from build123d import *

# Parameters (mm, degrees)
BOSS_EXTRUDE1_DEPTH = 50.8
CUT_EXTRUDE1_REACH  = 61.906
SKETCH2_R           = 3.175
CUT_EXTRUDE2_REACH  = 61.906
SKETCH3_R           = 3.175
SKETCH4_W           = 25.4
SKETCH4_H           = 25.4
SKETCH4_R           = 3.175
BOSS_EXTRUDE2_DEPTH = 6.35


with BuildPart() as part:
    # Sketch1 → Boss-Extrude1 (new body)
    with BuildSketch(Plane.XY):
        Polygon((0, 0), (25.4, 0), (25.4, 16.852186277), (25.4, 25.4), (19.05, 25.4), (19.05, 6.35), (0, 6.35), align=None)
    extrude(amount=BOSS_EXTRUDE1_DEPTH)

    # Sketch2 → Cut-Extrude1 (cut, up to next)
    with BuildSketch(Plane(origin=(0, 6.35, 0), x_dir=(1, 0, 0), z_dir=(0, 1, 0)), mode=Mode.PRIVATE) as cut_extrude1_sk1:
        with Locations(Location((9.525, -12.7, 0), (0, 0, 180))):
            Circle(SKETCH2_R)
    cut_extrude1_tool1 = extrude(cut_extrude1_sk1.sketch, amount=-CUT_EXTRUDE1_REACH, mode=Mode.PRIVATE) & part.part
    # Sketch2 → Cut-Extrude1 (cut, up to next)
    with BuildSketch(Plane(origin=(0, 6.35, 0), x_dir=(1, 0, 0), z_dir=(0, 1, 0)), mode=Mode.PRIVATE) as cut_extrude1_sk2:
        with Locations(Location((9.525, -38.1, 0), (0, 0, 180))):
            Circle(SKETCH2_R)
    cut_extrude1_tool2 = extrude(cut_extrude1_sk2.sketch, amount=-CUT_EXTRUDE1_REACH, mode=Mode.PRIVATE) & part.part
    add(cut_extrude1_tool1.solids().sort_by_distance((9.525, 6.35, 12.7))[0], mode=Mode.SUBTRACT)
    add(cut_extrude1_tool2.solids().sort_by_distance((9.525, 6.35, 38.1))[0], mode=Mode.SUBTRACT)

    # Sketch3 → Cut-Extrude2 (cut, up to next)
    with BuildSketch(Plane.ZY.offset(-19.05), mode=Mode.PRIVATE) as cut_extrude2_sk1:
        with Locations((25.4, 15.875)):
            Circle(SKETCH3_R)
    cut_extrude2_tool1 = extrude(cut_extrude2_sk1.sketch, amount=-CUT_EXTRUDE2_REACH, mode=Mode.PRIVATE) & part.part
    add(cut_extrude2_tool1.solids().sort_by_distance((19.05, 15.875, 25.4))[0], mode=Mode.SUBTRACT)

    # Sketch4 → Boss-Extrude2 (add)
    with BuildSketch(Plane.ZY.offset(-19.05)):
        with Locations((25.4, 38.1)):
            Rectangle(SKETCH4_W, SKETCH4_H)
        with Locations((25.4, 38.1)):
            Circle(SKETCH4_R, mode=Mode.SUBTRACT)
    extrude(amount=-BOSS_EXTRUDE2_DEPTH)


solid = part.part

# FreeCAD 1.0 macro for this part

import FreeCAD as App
import Part
import Sketcher

V = App.Vector
Q = App.Units.Quantity


def add_polygon(sketch, points):
    """Adds a closed chain of lines whose ends are joined by coincident constraints."""
    first, n = sketch.GeometryCount, len(points)
    for a, b in zip(points, points[1:] + points[:1]):
        sketch.addGeometry(Part.LineSegment(App.Vector(*a, 0), App.Vector(*b, 0)), False)
    for i in range(n):
        sketch.addConstraint(Sketcher.Constraint("Coincident", first + i, 2, first + (i + 1) % n, 1))

doc = App.newDocument("Part")
body = doc.addObject("PartDesign::Body", "Body")

sketch1 = body.newObject("Sketcher::SketchObject", "Sketch")
sketch1.AttachmentSupport = (doc.getObject("XY_Plane"), [""])
sketch1.MapMode = "FlatFace"
add_polygon(sketch1, [(0, 0), (25, 0), (25, 25), (19, 25), (19, 6), (0, 6)])
sketch1.addConstraint([
    Sketcher.Constraint("Horizontal", 0),
    Sketcher.Constraint("Vertical", 1),
    Sketcher.Constraint("Horizontal", 2),
    Sketcher.Constraint("Vertical", 3),
    Sketcher.Constraint("Horizontal", 4),
    Sketcher.Constraint("Vertical", 5),
    Sketcher.Constraint("Coincident", 5, 2, -1, 1),
    Sketcher.Constraint("Equal", 0, 1),
    Sketcher.Constraint("Equal", 4, 3),
    Sketcher.Constraint("DistanceX", 0, 1, 0, 2, Q("1 in")),
    Sketcher.Constraint("DistanceX", 2, 2, 2, 1, Q("0.25 in")),
])
pad1 = body.newObject("PartDesign::Pad", "Pad")
pad1.Profile = sketch1
pad1.Length = Q("2 in")

sketch2 = body.newObject("Sketcher::SketchObject", "Sketch001")
sketch2.AttachmentSupport = (doc.getObject("XZ_Plane"), [""])
sketch2.MapMode = "FlatFace"
sketch2.AttachmentOffset = App.Placement(V(0, 0, -0.25 * 25.4), App.Rotation())
sketch2.addGeometry(Part.Circle(V(9.5, 12.7, 0), V(0, 0, 1), 3.2), False)
sketch2.addConstraint([
    Sketcher.Constraint("Diameter", 0, Q("0.25 in")),
    Sketcher.Constraint("DistanceY", -1, 1, 0, 3, Q("0.5 in")),
    Sketcher.Constraint("DistanceX", -1, 1, 0, 3, Q("0.375 in")),
])
pocket1 = body.newObject("PartDesign::Pocket", "Pocket")
pocket1.Profile = sketch2
pocket1.Type = "UpToFirst"
pocket1.Reversed = True

sketch3 = body.newObject("Sketcher::SketchObject", "Sketch002")
sketch3.AttachmentSupport = (doc.getObject("XZ_Plane"), [""])
sketch3.MapMode = "FlatFace"
sketch3.AttachmentOffset = App.Placement(V(0, 0, -0.25 * 25.4), App.Rotation())
sketch3.addGeometry(Part.Circle(V(9.5, 38.1, 0), V(0, 0, 1), 3.2), False)
sketch3.addConstraint([
    Sketcher.Constraint("Diameter", 0, Q("0.25 in")),
    Sketcher.Constraint("DistanceY", -1, 1, 0, 3, Q("1.5 in")),
    Sketcher.Constraint("DistanceX", -1, 1, 0, 3, Q("0.375 in")),
])
pocket2 = body.newObject("PartDesign::Pocket", "Pocket001")
pocket2.Profile = sketch3
pocket2.Type = "UpToFirst"
pocket2.Reversed = True

sketch4 = body.newObject("Sketcher::SketchObject", "Sketch003")
sketch4.AttachmentSupport = (doc.getObject("YZ_Plane"), [""])
sketch4.MapMode = "FlatFace"
sketch4.AttachmentOffset = App.Placement(V(0, 0, 0.75 * 25.4), App.Rotation())
sketch4.addGeometry(Part.Circle(V(15.9, 25.4, 0), V(0, 0, 1), 3.2), False)
sketch4.addConstraint([
    Sketcher.Constraint("Diameter", 0, Q("0.25 in")),
    Sketcher.Constraint("DistanceY", -1, 1, 0, 3, Q("1 in")),
    Sketcher.Constraint("DistanceX", -1, 1, 0, 3, Q("0.625 in")),
])
pocket3 = body.newObject("PartDesign::Pocket", "Pocket002")
pocket3.Profile = sketch4
pocket3.Type = "UpToFirst"
pocket3.Reversed = True

sketch5 = body.newObject("Sketcher::SketchObject", "Sketch004")
sketch5.AttachmentSupport = (doc.getObject("YZ_Plane"), [""])
sketch5.MapMode = "FlatFace"
sketch5.AttachmentOffset = App.Placement(V(0, 0, 0.75 * 25.4), App.Rotation())
add_polygon(sketch5, [(50.8, 12.7), (25.4, 12.7), (25.4, 38.1), (50.8, 38.1)])
sketch5.addGeometry(Part.Circle(V(38.1, 25.4, 0), V(0, 0, 1), 3.2), False)
sketch5.addConstraint([
    Sketcher.Constraint("Horizontal", 0),
    Sketcher.Constraint("Vertical", 1),
    Sketcher.Constraint("Horizontal", 2),
    Sketcher.Constraint("Vertical", 3),
    Sketcher.Constraint("Equal", 2, 1),
    Sketcher.Constraint("Diameter", 4, Q("0.25 in")),
    Sketcher.Constraint("DistanceX", 0, 2, 0, 1, Q("1 in")),
    Sketcher.Constraint("DistanceY", -1, 1, 4, 3, Q("1 in")),
    Sketcher.Constraint("DistanceX", -1, 1, 0, 2, Q("1 in")),
    Sketcher.Constraint("DistanceX", -1, 1, 4, 3, Q("1.5 in")),
    Sketcher.Constraint("DistanceY", -1, 1, 0, 2, Q("0.5 in")),
])
pad2 = body.newObject("PartDesign::Pad", "Pad001")
pad2.Profile = sketch5
pad2.Length = Q("0.25 in")

doc.recompute()
